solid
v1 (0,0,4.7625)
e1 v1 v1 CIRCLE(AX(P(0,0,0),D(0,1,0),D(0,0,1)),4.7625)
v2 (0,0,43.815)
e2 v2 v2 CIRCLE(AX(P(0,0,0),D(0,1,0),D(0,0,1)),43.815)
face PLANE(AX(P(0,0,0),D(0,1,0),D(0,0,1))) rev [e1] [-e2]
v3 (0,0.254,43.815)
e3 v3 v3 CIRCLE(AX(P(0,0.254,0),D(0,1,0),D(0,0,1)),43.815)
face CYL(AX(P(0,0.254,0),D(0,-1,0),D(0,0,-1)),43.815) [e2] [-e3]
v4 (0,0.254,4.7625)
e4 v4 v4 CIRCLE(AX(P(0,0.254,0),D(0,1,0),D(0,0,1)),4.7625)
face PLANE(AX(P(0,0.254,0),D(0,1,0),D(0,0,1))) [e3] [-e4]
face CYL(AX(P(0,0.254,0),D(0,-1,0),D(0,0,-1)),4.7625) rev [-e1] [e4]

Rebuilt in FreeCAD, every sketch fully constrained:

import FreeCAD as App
import Part
import Sketcher
from FreeCAD import Vector
Q = App.Units.Quantity

doc = App.newDocument("Part")
params = doc.addObject("Spreadsheet::Sheet", "Params")
for row, (alias, value) in enumerate([
    ("sketch1_diameter", "3.45 in"),
    ("sketch1_diameter2", "0.375 in"),
    ("pad1_length", "0.01 in"),
], start=1):
    params.set(f"A{row}", alias)
    params.set(f"B{row}", "=" + value)
    params.setAlias(f"B{row}", alias)

body = doc.addObject("PartDesign::Body", "Body")

# Sketch on XZ plane
sketch1 = body.newObject("Sketcher::SketchObject", "Sketch")
sketch1.AttachmentSupport = (doc.getObject("XZ_Plane"), [""])
sketch1.MapMode = "FlatFace"
sketch1.addGeometry([
    Part.Circle(Vector(0, 0, 0), Vector(0, 0, 1), 43.8),
    Part.Circle(Vector(0, 0, 0), Vector(0, 0, 1), 4.8),
], False)
sketch1.addConstraint([
    Sketcher.Constraint("Coincident", 0, 3, -1, 1),
    Sketcher.Constraint("Coincident", 1, 3, -1, 1),
    Sketcher.Constraint("Diameter", 0, Q("3.45 in")),
    Sketcher.Constraint("Diameter", 1, Q("0.375 in")),
])
sketch1.setExpression("Constraints[2]", "Params.sketch1_diameter")
sketch1.setExpression("Constraints[3]", "Params.sketch1_diameter2")
pad1 = body.newObject("PartDesign::Pad", "Pad")
pad1.Profile = sketch1
pad1.setExpression("Length", "Params.pad1_length")
pad1.Reversed = True

doc.recompute()
